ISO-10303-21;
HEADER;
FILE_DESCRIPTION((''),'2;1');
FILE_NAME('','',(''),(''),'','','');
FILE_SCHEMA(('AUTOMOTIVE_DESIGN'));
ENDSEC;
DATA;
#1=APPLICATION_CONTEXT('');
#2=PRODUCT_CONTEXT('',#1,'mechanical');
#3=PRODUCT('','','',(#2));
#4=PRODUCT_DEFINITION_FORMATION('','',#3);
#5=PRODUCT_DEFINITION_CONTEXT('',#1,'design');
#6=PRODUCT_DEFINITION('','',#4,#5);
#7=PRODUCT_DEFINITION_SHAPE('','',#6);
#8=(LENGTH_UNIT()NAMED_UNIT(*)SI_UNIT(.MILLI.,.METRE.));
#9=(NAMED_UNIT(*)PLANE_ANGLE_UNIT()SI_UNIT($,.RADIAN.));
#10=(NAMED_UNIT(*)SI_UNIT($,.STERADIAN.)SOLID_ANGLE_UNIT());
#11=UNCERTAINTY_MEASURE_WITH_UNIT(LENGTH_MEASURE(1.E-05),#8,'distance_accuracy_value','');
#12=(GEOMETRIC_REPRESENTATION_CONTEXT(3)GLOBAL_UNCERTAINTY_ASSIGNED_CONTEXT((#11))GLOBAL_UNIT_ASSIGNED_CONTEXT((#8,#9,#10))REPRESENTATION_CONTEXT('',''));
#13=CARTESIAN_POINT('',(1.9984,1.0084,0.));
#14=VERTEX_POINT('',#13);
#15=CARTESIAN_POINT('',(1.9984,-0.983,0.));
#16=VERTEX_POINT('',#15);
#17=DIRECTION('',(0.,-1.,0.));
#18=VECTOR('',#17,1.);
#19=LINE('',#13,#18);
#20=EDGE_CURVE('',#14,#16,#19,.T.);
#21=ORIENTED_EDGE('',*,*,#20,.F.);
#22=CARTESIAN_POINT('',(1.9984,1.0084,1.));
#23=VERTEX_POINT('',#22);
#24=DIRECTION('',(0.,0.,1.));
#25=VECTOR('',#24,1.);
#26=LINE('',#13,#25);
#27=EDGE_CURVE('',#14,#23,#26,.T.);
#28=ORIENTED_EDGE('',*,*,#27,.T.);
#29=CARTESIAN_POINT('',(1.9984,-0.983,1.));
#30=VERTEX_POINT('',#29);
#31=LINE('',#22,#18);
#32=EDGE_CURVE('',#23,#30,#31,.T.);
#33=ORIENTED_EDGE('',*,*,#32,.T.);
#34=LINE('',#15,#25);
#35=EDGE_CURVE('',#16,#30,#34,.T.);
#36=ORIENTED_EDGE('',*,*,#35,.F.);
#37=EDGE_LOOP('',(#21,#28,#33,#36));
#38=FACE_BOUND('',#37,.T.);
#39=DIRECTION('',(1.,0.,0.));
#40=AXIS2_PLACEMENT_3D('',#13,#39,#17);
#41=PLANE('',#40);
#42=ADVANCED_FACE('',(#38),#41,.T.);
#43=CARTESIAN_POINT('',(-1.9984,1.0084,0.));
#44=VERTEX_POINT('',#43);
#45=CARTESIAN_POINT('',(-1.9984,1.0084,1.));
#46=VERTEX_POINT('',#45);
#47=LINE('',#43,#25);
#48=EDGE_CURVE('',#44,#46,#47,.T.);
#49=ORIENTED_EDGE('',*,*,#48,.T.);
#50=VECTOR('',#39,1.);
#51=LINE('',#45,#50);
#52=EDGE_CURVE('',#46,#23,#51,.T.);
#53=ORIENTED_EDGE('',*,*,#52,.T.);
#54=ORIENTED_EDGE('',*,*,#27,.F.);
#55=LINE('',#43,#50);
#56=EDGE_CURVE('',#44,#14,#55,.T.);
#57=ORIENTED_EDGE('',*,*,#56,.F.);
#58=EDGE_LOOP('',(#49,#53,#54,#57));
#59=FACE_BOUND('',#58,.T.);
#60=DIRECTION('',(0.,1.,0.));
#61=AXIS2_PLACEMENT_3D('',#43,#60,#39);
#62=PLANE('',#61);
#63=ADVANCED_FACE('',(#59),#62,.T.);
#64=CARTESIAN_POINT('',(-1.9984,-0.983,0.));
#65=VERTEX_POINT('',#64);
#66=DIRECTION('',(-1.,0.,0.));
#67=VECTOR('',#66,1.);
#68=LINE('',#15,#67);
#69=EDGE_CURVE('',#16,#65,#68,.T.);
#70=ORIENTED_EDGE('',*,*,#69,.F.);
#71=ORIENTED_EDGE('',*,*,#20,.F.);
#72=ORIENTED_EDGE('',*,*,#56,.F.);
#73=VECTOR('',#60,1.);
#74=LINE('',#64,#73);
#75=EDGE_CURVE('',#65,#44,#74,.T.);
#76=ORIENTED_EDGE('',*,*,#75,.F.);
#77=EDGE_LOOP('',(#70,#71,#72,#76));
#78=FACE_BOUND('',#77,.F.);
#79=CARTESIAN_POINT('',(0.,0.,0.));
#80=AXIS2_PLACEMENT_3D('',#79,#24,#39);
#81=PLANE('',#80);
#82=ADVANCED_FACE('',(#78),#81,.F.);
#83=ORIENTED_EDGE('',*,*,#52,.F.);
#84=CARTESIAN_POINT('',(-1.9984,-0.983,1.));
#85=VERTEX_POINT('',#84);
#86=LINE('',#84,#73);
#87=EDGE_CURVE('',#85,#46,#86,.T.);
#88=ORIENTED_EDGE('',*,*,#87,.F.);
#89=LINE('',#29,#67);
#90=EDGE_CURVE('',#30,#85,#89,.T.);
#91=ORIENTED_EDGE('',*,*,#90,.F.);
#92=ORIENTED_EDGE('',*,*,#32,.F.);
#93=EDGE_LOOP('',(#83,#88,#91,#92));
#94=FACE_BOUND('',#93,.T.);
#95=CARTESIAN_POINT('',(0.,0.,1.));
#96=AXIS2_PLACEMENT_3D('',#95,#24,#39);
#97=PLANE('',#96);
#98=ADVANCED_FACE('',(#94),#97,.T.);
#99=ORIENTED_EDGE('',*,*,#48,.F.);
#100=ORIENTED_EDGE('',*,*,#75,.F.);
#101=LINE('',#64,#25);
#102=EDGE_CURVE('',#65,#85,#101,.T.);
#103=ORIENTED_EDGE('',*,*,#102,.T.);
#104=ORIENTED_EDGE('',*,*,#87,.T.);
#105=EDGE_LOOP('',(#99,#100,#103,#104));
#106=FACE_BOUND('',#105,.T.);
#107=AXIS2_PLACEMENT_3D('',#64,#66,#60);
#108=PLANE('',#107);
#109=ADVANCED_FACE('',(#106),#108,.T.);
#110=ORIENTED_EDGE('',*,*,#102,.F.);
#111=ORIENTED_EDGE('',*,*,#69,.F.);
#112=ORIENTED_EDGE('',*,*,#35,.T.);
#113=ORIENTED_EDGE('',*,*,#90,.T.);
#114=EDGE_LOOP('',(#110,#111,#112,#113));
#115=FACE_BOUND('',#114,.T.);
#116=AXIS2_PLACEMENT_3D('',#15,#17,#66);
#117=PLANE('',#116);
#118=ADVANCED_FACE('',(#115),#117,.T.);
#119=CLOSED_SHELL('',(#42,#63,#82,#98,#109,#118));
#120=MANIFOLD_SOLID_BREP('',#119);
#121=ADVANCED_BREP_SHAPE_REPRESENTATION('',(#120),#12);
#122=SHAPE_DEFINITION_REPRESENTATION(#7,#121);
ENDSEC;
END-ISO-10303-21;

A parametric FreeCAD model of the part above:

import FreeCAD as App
import Part
import Sketcher
from FreeCAD import Vector

doc = App.newDocument("Part")
body = doc.addObject("PartDesign::Body", "Body")

sketch1 = body.newObject("Sketcher::SketchObject", "Sketch")
sketch1.AttachmentSupport = (doc.getObject("XY_Plane"), [""])
sketch1.MapMode = "FlatFace"
sketch1.addGeometry([
    Part.LineSegment(Vector(2, 1, 0), Vector(-2, 1, 0)),
    Part.LineSegment(Vector(-2, 1, 0), Vector(-2, -1, 0)),
    Part.LineSegment(Vector(-2, -1, 0), Vector(2, -1, 0)),
    Part.LineSegment(Vector(2, -1, 0), Vector(2, 1, 0)),
], False)
sketch1.addConstraint([
    Sketcher.Constraint("Coincident", 0, 2, 1, 1),
    Sketcher.Constraint("Coincident", 1, 2, 2, 1),
    Sketcher.Constraint("Coincident", 2, 2, 3, 1),
    Sketcher.Constraint("Coincident", 3, 2, 0, 1),
    Sketcher.Constraint("Horizontal", 0),
    Sketcher.Constraint("Vertical", 1),
    Sketcher.Constraint("Horizontal", 2),
    Sketcher.Constraint("Vertical", 3),
    Sketcher.Constraint("DistanceX", 0, 2, 0, 1, 3.9968),
    Sketcher.Constraint("DistanceY", 1, 2, 1, 1, 1.9914),
    Sketcher.Constraint("DistanceY", 1, 2, -1, 1, 0.983),
    Sketcher.Constraint("DistanceX", 0, 2, -1, 1, 1.9984),
])
pad1 = body.newObject("PartDesign::Pad", "Pad")
pad1.Profile = sketch1
pad1.Length = 1

doc.recompute()
